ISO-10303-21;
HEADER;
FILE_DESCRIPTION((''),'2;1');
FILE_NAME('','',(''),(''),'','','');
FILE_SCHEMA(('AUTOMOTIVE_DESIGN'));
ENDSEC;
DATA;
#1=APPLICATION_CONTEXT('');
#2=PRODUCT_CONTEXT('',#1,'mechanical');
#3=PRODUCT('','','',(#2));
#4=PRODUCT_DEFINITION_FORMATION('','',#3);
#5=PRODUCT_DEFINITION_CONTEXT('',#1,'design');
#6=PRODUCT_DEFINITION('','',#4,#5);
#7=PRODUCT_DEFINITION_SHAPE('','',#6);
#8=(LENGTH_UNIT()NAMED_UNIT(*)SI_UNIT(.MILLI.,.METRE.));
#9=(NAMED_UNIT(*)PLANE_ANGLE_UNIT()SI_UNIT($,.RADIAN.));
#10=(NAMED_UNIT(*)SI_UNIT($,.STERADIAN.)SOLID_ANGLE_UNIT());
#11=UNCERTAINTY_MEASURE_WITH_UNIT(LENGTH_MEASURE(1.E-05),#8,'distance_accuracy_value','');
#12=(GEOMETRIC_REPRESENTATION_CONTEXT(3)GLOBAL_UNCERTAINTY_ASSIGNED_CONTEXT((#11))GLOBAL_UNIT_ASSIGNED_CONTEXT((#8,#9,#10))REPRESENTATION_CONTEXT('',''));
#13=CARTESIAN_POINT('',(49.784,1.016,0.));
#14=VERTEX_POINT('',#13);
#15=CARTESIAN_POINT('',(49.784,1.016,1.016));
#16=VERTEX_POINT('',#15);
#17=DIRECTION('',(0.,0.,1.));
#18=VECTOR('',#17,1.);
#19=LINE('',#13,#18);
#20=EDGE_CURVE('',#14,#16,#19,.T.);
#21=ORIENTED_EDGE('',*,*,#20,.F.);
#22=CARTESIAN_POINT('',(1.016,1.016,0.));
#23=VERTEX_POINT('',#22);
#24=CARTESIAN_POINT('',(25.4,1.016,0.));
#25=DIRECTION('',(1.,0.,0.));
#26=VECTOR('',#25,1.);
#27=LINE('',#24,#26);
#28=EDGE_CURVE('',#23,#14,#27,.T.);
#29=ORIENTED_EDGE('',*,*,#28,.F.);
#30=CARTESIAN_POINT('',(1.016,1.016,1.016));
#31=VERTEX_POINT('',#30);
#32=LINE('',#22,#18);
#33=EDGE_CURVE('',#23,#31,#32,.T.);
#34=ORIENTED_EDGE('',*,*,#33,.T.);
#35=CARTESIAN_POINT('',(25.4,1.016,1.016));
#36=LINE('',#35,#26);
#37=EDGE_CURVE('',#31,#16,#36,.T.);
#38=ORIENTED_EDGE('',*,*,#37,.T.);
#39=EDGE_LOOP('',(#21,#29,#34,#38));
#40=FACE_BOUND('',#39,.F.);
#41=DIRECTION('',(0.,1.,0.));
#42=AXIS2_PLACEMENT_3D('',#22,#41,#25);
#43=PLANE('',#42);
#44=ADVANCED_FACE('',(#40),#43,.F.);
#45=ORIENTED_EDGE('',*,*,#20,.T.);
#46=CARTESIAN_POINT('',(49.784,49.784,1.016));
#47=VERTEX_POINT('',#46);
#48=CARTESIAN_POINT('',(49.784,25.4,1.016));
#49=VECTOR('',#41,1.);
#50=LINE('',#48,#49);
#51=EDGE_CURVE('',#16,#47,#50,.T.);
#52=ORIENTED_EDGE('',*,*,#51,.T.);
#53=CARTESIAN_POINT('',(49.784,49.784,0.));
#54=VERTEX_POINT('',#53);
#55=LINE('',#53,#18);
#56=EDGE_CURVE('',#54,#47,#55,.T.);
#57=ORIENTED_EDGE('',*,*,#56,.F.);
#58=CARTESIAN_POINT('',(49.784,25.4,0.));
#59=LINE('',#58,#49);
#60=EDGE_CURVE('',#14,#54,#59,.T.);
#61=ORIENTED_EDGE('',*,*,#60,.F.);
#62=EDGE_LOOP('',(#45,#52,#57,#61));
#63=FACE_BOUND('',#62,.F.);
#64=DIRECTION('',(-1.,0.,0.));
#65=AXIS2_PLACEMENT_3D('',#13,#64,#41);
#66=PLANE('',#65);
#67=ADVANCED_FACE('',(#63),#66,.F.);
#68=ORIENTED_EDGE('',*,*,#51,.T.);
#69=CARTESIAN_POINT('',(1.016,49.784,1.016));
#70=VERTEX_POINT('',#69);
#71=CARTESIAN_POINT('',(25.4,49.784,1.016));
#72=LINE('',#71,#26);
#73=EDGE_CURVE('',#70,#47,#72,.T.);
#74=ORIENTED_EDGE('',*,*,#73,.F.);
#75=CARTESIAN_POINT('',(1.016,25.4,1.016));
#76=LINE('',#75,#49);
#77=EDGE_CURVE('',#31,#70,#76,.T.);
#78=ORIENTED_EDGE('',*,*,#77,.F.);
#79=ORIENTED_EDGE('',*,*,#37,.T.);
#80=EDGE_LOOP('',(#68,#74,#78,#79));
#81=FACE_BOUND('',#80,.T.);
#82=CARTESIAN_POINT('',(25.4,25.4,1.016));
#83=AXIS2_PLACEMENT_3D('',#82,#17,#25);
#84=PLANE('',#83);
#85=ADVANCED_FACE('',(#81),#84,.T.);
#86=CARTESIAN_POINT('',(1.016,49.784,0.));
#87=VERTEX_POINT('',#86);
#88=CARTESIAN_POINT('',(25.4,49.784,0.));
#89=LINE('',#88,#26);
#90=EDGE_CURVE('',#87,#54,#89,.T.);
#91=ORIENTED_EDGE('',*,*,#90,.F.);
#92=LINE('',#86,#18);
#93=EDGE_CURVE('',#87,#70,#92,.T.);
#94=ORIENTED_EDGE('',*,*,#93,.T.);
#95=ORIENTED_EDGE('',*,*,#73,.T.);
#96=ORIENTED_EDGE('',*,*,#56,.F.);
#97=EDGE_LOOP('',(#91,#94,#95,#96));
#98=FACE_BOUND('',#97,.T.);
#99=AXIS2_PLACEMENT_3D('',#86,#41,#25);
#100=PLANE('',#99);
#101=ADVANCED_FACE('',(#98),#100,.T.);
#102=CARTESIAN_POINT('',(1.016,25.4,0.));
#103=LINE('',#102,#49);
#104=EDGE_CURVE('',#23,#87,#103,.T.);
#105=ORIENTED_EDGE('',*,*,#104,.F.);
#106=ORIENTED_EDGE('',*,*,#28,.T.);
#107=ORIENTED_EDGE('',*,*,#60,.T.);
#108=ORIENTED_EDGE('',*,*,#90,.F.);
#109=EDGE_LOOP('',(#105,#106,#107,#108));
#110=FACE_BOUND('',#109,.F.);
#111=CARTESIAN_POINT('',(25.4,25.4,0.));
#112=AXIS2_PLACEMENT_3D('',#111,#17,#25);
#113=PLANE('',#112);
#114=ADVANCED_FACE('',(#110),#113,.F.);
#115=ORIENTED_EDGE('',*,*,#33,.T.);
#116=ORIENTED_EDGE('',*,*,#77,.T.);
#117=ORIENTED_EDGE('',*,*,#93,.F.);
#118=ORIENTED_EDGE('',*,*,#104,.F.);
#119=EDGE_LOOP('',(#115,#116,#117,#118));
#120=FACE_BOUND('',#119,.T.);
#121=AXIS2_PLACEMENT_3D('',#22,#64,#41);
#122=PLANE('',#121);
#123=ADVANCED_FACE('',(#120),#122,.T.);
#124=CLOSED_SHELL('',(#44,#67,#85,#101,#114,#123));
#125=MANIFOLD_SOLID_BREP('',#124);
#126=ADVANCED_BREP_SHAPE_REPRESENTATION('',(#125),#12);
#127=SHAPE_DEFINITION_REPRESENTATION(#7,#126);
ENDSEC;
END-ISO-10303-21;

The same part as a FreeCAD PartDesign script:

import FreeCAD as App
import Part
import Sketcher

V = App.Vector
Q = App.Units.Quantity

doc = App.newDocument("Part")
body = doc.addObject("PartDesign::Body", "Body")

sketch1 = doc.addObject("Sketcher::SketchObject", "Sketch")
body.addObject(sketch1)
sketch1.AttachmentSupport = (doc.XY_Plane, [""])
sketch1.MapMode = "FlatFace"
sketch1.addGeometry([
    Part.LineSegment(V(1.016, 49.784, 0), V(1.016, 1.016, 0)),
    Part.LineSegment(V(1.016, 1.016, 0), V(49.784, 1.016, 0)),
    Part.LineSegment(V(49.784, 1.016, 0), V(49.784, 49.784, 0)),
    Part.LineSegment(V(49.784, 49.784, 0), V(1.016, 49.784, 0)),
], False)
sketch1.addConstraint([
    Sketcher.Constraint("Coincident", 0, 2, 1, 1),
    Sketcher.Constraint("Coincident", 1, 2, 2, 1),
    Sketcher.Constraint("Coincident", 2, 2, 3, 1),
    Sketcher.Constraint("Coincident", 3, 2, 0, 1),
    Sketcher.Constraint("Vertical", 0),
    Sketcher.Constraint("Horizontal", 1),
    Sketcher.Constraint("Vertical", 2),
    Sketcher.Constraint("Horizontal", 3),
    Sketcher.Constraint("Equal", 3, 0),
    Sketcher.Constraint("DistanceX", 1, 1, 1, 2, Q("1.92 in")),
    Sketcher.Constraint("DistanceX", -1, 1, 0, 2, Q("0.04 in")),
    Sketcher.Constraint("DistanceY", -1, 1, 0, 2, Q("0.04 in")),
])
pad1 = doc.addObject("PartDesign::Pad", "Pad")
body.addObject(pad1)
pad1.Profile = sketch1
pad1.Length = Q("0.04 in")

doc.recompute()
